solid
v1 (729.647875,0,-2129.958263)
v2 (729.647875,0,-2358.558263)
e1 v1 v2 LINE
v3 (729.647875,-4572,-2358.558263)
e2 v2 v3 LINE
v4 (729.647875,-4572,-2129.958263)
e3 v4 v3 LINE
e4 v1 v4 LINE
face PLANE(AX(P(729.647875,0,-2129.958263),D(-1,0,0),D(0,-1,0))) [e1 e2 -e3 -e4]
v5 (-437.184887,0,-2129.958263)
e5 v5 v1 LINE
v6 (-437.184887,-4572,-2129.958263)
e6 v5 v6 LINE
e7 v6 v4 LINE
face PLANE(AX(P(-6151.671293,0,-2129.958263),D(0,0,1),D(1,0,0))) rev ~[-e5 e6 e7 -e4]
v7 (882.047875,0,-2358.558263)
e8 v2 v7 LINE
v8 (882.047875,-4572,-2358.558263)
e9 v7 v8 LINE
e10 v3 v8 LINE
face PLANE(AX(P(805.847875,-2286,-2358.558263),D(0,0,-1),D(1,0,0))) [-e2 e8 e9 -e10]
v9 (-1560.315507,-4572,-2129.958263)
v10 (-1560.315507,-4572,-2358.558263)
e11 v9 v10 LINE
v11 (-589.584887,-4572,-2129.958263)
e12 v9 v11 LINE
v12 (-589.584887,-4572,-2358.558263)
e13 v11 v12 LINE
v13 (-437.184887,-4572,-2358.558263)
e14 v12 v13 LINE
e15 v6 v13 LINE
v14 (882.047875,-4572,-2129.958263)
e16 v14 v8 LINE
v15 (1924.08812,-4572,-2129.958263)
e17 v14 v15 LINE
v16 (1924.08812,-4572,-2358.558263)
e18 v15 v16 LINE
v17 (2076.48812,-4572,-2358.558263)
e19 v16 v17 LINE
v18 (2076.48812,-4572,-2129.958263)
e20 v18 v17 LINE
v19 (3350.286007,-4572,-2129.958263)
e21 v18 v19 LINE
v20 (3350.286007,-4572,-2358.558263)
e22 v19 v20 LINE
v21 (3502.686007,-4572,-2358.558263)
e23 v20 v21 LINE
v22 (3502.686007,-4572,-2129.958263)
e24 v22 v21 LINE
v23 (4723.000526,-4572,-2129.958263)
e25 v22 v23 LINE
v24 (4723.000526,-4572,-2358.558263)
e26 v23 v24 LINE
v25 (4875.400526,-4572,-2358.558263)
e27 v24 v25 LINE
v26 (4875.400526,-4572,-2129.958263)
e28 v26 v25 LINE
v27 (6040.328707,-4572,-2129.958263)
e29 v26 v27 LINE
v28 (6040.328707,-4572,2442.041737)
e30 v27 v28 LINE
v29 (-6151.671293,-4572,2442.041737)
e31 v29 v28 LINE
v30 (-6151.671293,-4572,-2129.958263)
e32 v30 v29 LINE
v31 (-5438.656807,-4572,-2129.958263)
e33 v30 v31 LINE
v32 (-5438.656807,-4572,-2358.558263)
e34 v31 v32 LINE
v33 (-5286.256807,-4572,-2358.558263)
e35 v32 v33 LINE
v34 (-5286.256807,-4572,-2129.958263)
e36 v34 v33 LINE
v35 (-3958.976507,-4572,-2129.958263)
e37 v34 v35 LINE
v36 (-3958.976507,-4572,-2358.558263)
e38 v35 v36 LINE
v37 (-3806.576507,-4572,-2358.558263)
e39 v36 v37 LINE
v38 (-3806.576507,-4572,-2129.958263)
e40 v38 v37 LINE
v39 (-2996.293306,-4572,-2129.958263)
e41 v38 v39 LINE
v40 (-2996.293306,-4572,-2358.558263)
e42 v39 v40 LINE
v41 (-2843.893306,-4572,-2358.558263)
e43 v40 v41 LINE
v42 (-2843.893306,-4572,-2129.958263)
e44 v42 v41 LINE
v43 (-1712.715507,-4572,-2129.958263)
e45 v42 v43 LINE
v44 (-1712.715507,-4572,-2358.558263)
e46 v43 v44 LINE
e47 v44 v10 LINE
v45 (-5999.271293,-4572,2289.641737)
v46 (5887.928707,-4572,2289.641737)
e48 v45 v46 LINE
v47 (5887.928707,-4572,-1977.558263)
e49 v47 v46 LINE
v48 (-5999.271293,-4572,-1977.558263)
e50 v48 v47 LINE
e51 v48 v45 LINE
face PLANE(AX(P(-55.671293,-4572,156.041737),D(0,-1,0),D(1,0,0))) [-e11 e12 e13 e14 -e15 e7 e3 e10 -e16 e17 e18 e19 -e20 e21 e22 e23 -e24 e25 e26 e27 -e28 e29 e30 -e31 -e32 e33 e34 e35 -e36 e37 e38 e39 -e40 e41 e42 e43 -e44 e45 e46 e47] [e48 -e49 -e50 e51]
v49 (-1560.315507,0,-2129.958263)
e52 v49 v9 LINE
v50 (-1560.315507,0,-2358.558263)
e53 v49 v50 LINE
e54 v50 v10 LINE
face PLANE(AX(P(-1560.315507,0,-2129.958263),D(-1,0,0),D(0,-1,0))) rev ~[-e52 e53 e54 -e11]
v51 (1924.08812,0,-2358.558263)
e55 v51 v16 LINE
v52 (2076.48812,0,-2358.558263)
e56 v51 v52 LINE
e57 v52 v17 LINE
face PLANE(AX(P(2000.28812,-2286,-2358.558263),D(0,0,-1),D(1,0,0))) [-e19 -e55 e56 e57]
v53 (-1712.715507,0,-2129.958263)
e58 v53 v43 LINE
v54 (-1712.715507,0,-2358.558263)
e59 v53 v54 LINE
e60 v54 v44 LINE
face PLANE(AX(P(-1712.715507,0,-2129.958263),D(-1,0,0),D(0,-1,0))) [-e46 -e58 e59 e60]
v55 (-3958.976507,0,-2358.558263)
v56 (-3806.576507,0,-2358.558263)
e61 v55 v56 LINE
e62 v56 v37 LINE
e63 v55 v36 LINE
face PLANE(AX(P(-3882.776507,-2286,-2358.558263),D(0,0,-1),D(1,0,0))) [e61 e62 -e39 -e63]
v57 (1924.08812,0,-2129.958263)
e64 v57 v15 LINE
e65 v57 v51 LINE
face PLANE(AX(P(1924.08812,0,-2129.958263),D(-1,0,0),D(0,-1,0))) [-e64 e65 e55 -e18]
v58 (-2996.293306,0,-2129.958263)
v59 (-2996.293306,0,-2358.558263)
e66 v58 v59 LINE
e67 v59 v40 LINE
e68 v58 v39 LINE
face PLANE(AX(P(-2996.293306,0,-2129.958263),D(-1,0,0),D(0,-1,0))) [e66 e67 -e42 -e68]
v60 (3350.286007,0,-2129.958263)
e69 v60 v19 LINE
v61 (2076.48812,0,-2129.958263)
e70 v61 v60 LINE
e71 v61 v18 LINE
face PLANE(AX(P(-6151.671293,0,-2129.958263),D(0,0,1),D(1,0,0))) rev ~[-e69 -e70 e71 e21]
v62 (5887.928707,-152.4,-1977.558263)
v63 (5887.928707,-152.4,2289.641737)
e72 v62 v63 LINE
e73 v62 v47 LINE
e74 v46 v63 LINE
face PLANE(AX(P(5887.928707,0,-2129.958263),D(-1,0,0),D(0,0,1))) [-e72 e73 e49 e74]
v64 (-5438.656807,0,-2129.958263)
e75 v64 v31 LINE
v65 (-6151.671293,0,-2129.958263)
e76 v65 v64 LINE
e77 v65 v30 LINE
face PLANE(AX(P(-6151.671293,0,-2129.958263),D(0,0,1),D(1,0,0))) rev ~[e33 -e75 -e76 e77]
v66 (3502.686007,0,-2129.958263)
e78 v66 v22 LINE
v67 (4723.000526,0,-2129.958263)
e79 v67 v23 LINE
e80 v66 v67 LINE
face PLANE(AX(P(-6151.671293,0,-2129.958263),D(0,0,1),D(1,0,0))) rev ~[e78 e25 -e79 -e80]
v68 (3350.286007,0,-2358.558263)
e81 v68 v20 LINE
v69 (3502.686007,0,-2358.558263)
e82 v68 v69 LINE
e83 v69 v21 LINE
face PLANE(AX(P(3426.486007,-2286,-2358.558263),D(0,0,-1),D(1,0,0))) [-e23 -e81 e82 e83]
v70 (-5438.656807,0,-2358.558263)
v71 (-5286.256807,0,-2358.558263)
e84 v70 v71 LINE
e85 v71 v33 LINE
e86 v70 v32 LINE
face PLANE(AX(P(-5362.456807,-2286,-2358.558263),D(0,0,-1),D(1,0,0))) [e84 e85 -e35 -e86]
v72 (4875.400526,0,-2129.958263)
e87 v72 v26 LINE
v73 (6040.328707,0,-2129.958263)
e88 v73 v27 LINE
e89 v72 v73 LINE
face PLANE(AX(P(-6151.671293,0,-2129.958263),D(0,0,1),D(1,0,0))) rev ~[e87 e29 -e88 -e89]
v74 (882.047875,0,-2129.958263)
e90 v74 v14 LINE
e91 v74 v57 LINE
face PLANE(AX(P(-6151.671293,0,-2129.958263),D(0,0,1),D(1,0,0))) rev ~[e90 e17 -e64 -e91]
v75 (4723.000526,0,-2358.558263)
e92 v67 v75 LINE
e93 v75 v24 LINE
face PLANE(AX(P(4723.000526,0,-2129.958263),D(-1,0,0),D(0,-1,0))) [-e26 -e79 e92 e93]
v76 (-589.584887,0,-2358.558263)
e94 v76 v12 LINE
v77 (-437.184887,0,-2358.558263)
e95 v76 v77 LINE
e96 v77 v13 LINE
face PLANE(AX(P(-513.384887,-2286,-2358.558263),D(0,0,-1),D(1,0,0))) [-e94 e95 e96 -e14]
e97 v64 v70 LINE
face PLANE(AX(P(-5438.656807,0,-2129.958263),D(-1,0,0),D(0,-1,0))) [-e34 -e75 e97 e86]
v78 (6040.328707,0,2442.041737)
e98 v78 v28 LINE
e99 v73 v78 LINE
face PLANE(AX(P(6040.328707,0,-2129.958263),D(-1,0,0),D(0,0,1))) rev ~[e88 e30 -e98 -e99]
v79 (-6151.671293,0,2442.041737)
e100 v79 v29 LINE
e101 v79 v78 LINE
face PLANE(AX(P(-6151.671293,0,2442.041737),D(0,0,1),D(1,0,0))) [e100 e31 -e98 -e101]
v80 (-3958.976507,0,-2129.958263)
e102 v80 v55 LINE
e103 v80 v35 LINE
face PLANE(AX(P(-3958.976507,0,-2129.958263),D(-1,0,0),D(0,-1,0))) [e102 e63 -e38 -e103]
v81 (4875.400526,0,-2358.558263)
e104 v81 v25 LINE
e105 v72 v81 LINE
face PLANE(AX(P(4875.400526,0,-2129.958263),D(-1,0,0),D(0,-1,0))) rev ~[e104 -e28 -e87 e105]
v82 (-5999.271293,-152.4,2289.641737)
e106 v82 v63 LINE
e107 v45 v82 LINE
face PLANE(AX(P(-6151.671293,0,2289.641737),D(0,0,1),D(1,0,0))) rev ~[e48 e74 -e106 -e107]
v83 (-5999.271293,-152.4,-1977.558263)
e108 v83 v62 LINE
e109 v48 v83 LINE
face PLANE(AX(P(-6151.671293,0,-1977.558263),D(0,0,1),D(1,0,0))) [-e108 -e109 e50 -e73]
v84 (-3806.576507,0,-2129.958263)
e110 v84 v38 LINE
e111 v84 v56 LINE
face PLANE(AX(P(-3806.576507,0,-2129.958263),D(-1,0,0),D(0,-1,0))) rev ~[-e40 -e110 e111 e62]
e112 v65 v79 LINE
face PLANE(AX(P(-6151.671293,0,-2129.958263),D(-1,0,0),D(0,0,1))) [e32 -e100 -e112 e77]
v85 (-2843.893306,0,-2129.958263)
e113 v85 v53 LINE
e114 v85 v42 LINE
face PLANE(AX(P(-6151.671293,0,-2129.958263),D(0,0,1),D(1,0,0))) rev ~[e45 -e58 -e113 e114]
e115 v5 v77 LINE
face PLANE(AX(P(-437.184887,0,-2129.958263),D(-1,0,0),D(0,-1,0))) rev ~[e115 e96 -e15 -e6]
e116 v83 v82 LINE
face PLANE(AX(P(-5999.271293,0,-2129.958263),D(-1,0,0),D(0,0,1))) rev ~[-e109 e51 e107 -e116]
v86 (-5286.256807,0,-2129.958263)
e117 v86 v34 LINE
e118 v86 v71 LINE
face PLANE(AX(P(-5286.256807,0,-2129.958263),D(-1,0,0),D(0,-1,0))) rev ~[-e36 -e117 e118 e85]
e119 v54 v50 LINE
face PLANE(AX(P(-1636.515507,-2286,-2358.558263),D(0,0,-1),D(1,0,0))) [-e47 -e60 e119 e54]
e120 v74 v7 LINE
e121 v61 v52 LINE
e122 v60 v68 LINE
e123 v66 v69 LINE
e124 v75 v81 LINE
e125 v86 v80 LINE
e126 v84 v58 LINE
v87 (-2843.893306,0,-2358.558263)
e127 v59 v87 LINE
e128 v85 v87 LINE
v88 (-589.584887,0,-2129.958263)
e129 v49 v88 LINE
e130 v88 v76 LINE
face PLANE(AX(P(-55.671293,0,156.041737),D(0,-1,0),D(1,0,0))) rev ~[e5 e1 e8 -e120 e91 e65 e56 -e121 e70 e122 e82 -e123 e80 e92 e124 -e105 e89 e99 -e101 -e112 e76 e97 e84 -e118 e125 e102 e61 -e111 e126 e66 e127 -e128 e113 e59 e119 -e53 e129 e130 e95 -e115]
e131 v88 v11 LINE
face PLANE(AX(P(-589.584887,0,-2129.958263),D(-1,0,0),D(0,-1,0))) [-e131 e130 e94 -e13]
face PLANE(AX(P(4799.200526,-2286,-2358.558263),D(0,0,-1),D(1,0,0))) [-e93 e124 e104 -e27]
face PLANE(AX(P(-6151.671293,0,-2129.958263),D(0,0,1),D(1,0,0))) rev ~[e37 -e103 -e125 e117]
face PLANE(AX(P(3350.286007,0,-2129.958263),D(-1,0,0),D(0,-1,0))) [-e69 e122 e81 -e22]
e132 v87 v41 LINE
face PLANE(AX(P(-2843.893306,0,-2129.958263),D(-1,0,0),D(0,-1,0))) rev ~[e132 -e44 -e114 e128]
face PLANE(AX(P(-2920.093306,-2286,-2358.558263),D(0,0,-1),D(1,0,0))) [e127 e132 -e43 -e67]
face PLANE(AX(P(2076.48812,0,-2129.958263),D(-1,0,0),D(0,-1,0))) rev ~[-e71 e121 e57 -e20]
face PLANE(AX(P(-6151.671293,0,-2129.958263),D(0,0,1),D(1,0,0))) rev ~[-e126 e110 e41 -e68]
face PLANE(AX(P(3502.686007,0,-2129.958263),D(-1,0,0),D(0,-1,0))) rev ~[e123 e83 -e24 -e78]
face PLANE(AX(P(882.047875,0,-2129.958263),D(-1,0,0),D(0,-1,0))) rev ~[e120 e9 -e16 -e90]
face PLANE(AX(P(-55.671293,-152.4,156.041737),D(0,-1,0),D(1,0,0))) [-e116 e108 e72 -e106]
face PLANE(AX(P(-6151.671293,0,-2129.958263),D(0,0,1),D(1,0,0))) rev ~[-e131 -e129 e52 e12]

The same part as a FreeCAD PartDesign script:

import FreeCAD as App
import Part
import Sketcher

V = App.Vector
Q = App.Units.Quantity


def faces_at(feature, points):
    """Names of the faces that lie closest to the given points."""
    faces = feature.Shape.Faces
    near = lambda p: min(range(len(faces)), key=lambda i: faces[i].distToShape(Part.Vertex(*p))[0])
    return sorted({f"Face{near(p) + 1}" for p in points})

doc = App.newDocument("Part")
body = doc.addObject("PartDesign::Body", "Body")

sketch1 = body.newObject("Sketcher::SketchObject", "Sketch")
sketch1.AttachmentSupport = (doc.getObject("XZ_Plane"), [""])
sketch1.MapMode = "FlatFace"
sketch1.addGeometry([
    Part.LineSegment(V(-6152, 2442, 0), V(-6152, -2130, 0)),
    Part.LineSegment(V(-6152, -2130, 0), V(6040, -2130, 0)),
    Part.LineSegment(V(6040, -2130, 0), V(6040, 2442, 0)),
    Part.LineSegment(V(6040, 2442, 0), V(-6152, 2442, 0)),
], False)
sketch1.addConstraint([
    Sketcher.Constraint("Coincident", 0, 2, 1, 1),
    Sketcher.Constraint("Coincident", 1, 2, 2, 1),
    Sketcher.Constraint("Coincident", 2, 2, 3, 1),
    Sketcher.Constraint("Coincident", 3, 2, 0, 1),
    Sketcher.Constraint("Vertical", 0),
    Sketcher.Constraint("Horizontal", 1),
    Sketcher.Constraint("Vertical", 2),
    Sketcher.Constraint("Horizontal", 3),
    Sketcher.Constraint("DistanceX", 1, 1, 1, 2, Q("480 in")),
    Sketcher.Constraint("DistanceY", 0, 2, 0, 1, Q("180 in")),
    Sketcher.Constraint("DistanceX", 0, 2, -1, 1, 6151.671293),
    Sketcher.Constraint("DistanceY", 0, 2, -1, 1, 2129.958263),
])
pad1 = body.newObject("PartDesign::Pad", "Pad")
pad1.Profile = sketch1
pad1.Length = Q("180 in")
doc.recompute()

thickness = body.newObject("PartDesign::Thickness", "Thickness")
thickness.Base = (pad1, faces_at(pad1, [(-55.671, -4572, 156.042)]))
thickness.Value = Q("6 in")
thickness.Reversed = True
thickness.Join = "Arc"

sketch2 = body.newObject("Sketcher::SketchObject", "Sketch001")
sketch2.AttachmentSupport = (doc.getObject("XY_Plane"), [""])
sketch2.MapMode = "FlatFace"
sketch2.AttachmentOffset = App.Placement(V(0, 0, -2129.958263), App.Rotation())
sketch2.addGeometry([
    Part.LineSegment(V(4723, -4572, 0), V(4723, 0, 0)),
    Part.LineSegment(V(4723, 0, 0), V(4875, 0, 0)),
    Part.LineSegment(V(4875, 0, 0), V(4875, -4572, 0)),
    Part.LineSegment(V(4875, -4572, 0), V(4723, -4572, 0)),
    Part.LineSegment(V(3350, -4572, 0), V(3350, 0, 0)),
    Part.LineSegment(V(3350, 0, 0), V(3503, 0, 0)),
    Part.LineSegment(V(3503, 0, 0), V(3503, -4572, 0)),
    Part.LineSegment(V(3503, -4572, 0), V(3350, -4572, 0)),
    Part.LineSegment(V(1924, -4572, 0), V(1924, 0, 0)),
    Part.LineSegment(V(1924, 0, 0), V(2076, 0, 0)),
    Part.LineSegment(V(2076, 0, 0), V(2076, -4572, 0)),
    Part.LineSegment(V(2076, -4572, 0), V(1924, -4572, 0)),
    Part.LineSegment(V(730, -4572, 0), V(730, 0, 0)),
    Part.LineSegment(V(730, 0, 0), V(882, 0, 0)),
    Part.LineSegment(V(882, 0, 0), V(882, -4572, 0)),
    Part.LineSegment(V(882, -4572, 0), V(730, -4572, 0)),
    Part.LineSegment(V(-590, -4572, 0), V(-590, 0, 0)),
    Part.LineSegment(V(-590, 0, 0), V(-437, 0, 0)),
    Part.LineSegment(V(-437, 0, 0), V(-437, -4572, 0)),
    Part.LineSegment(V(-437, -4572, 0), V(-590, -4572, 0)),
    Part.LineSegment(V(-1713, -4572, 0), V(-1713, 0, 0)),
    Part.LineSegment(V(-1713, 0, 0), V(-1560, 0, 0)),
    Part.LineSegment(V(-1560, 0, 0), V(-1560, -4572, 0)),
    Part.LineSegment(V(-1560, -4572, 0), V(-1713, -4572, 0)),
    Part.LineSegment(V(-2996, -4572, 0), V(-2996, 0, 0)),
    Part.LineSegment(V(-2996, 0, 0), V(-2844, 0, 0)),
    Part.LineSegment(V(-2844, 0, 0), V(-2844, -4572, 0)),
    Part.LineSegment(V(-2844, -4572, 0), V(-2996, -4572, 0)),
    Part.LineSegment(V(-3959, -4572, 0), V(-3959, 0, 0)),
    Part.LineSegment(V(-3959, 0, 0), V(-3807, 0, 0)),
    Part.LineSegment(V(-3807, 0, 0), V(-3807, -4572, 0)),
    Part.LineSegment(V(-3807, -4572, 0), V(-3959, -4572, 0)),
    Part.LineSegment(V(-5439, -4572, 0), V(-5439, 0, 0)),
    Part.LineSegment(V(-5439, 0, 0), V(-5286, 0, 0)),
    Part.LineSegment(V(-5286, 0, 0), V(-5286, -4572, 0)),
    Part.LineSegment(V(-5286, -4572, 0), V(-5439, -4572, 0)),
], False)
sketch2.addConstraint([
    Sketcher.Constraint("Coincident", 0, 2, 1, 1),
    Sketcher.Constraint("Coincident", 1, 2, 2, 1),
    Sketcher.Constraint("Coincident", 2, 2, 3, 1),
    Sketcher.Constraint("Coincident", 3, 2, 0, 1),
    Sketcher.Constraint("Coincident", 4, 2, 5, 1),
    Sketcher.Constraint("Coincident", 5, 2, 6, 1),
    Sketcher.Constraint("Coincident", 6, 2, 7, 1),
    Sketcher.Constraint("Coincident", 7, 2, 4, 1),
    Sketcher.Constraint("Coincident", 8, 2, 9, 1),
    Sketcher.Constraint("Coincident", 9, 2, 10, 1),
    Sketcher.Constraint("Coincident", 10, 2, 11, 1),
    Sketcher.Constraint("Coincident", 11, 2, 8, 1),
    Sketcher.Constraint("Coincident", 12, 2, 13, 1),
    Sketcher.Constraint("Coincident", 13, 2, 14, 1),
    Sketcher.Constraint("Coincident", 14, 2, 15, 1),
    Sketcher.Constraint("Coincident", 15, 2, 12, 1),
    Sketcher.Constraint("Coincident", 16, 2, 17, 1),
    Sketcher.Constraint("Coincident", 17, 2, 18, 1),
    Sketcher.Constraint("Coincident", 18, 2, 19, 1),
    Sketcher.Constraint("Coincident", 19, 2, 16, 1),
    Sketcher.Constraint("Coincident", 20, 2, 21, 1),
    Sketcher.Constraint("Coincident", 21, 2, 22, 1),
    Sketcher.Constraint("Coincident", 22, 2, 23, 1),
    Sketcher.Constraint("Coincident", 23, 2, 20, 1),
    Sketcher.Constraint("Coincident", 24, 2, 25, 1),
    Sketcher.Constraint("Coincident", 25, 2, 26, 1),
    Sketcher.Constraint("Coincident", 26, 2, 27, 1),
    Sketcher.Constraint("Coincident", 27, 2, 24, 1),
    Sketcher.Constraint("Coincident", 28, 2, 29, 1),
    Sketcher.Constraint("Coincident", 29, 2, 30, 1),
    Sketcher.Constraint("Coincident", 30, 2, 31, 1),
    Sketcher.Constraint("Coincident", 31, 2, 28, 1),
    Sketcher.Constraint("Coincident", 32, 2, 33, 1),
    Sketcher.Constraint("Coincident", 33, 2, 34, 1),
    Sketcher.Constraint("Coincident", 34, 2, 35, 1),
    Sketcher.Constraint("Coincident", 35, 2, 32, 1),
    Sketcher.Constraint("Vertical", 0),
    Sketcher.Constraint("Horizontal", 1),
    Sketcher.Constraint("Vertical", 2),
    Sketcher.Constraint("Horizontal", 3),
    Sketcher.Constraint("Vertical", 4),
    Sketcher.Constraint("Horizontal", 5),
    Sketcher.Constraint("Vertical", 6),
    Sketcher.Constraint("Horizontal", 7),
    Sketcher.Constraint("Vertical", 8),
    Sketcher.Constraint("Horizontal", 9),
    Sketcher.Constraint("Vertical", 10),
    Sketcher.Constraint("Horizontal", 11),
    Sketcher.Constraint("Vertical", 12),
    Sketcher.Constraint("Horizontal", 13),
    Sketcher.Constraint("Vertical", 14),
    Sketcher.Constraint("Horizontal", 15),
    Sketcher.Constraint("Vertical", 16),
    Sketcher.Constraint("Horizontal", 17),
    Sketcher.Constraint("Vertical", 18),
    Sketcher.Constraint("Horizontal", 19),
    Sketcher.Constraint("Vertical", 20),
    Sketcher.Constraint("Horizontal", 21),
    Sketcher.Constraint("Vertical", 22),
    Sketcher.Constraint("Horizontal", 23),
    Sketcher.Constraint("Vertical", 24),
    Sketcher.Constraint("Horizontal", 25),
    Sketcher.Constraint("Vertical", 26),
    Sketcher.Constraint("Horizontal", 27),
    Sketcher.Constraint("Vertical", 28),
    Sketcher.Constraint("Horizontal", 29),
    Sketcher.Constraint("Vertical", 30),
    Sketcher.Constraint("Horizontal", 31),
    Sketcher.Constraint("Vertical", 32),
    Sketcher.Constraint("Horizontal", 33),
    Sketcher.Constraint("Vertical", 34),
    Sketcher.Constraint("Horizontal", 35),
    Sketcher.Constraint("PointOnObject", 0, 2, -1),
    Sketcher.Constraint("PointOnObject", 4, 2, -1),
    Sketcher.Constraint("PointOnObject", 8, 2, -1),
    Sketcher.Constraint("PointOnObject", 12, 2, -1),
    Sketcher.Constraint("PointOnObject", 16, 2, -1),
    Sketcher.Constraint("PointOnObject", 20, 2, -1),
    Sketcher.Constraint("PointOnObject", 24, 2, -1),
    Sketcher.Constraint("PointOnObject", 28, 2, -1),
    Sketcher.Constraint("PointOnObject", 32, 2, -1),
    Sketcher.Constraint("Horizontal", 3, 2, 6, 2),
    Sketcher.Constraint("Horizontal", 7, 2, 10, 2),
    Sketcher.Constraint("Horizontal", 11, 2, 14, 2),
    Sketcher.Constraint("Horizontal", 15, 2, 18, 2),
    Sketcher.Constraint("Horizontal", 19, 2, 22, 2),
    Sketcher.Constraint("Horizontal", 23, 2, 26, 2),
    Sketcher.Constraint("Horizontal", 27, 2, 30, 2),
    Sketcher.Constraint("Horizontal", 31, 2, 34, 2),
    Sketcher.Constraint("Equal", 3, 5),
    Sketcher.Constraint("Equal", 7, 9),
    Sketcher.Constraint("Equal", 11, 13),
    Sketcher.Constraint("Equal", 15, 17),
    Sketcher.Constraint("Equal", 19, 21),
    Sketcher.Constraint("Equal", 23, 25),
    Sketcher.Constraint("Equal", 27, 29),
    Sketcher.Constraint("Equal", 31, 33),
    Sketcher.Constraint("DistanceX", 1, 1, 1, 2, Q("6 in")),
    Sketcher.Constraint("DistanceY", 0, 1, 0, 2, Q("180 in")),
    Sketcher.Constraint("DistanceX", 24, 2, 16, 2, Q("94.7523 in")),
    Sketcher.Constraint("DistanceX", 24, 2, 20, 2, 1283.577799),
    Sketcher.Constraint("DistanceX", 28, 2, 24, 2, 962.683201),
    Sketcher.Constraint("DistanceX", 32, 2, 28, 2, 1479.6803),
    Sketcher.Constraint("DistanceX", -1, 1, 8, 2, 1924.08812),
    Sketcher.Constraint("DistanceX", 4, 2, 0, 2, 1372.714519),
    Sketcher.Constraint("DistanceX", 12, 2, 5, 2, 2773.038132),
    Sketcher.Constraint("DistanceX", 16, 2, 12, 2, 1319.232762),
    Sketcher.Constraint("DistanceX", -1, 1, 0, 2, 4723.000526),
])
pad2 = body.newObject("PartDesign::Pad", "Pad001")
pad2.Profile = sketch2
pad2.Length = Q("9 in")
pad2.Reversed = True

doc.recompute()
